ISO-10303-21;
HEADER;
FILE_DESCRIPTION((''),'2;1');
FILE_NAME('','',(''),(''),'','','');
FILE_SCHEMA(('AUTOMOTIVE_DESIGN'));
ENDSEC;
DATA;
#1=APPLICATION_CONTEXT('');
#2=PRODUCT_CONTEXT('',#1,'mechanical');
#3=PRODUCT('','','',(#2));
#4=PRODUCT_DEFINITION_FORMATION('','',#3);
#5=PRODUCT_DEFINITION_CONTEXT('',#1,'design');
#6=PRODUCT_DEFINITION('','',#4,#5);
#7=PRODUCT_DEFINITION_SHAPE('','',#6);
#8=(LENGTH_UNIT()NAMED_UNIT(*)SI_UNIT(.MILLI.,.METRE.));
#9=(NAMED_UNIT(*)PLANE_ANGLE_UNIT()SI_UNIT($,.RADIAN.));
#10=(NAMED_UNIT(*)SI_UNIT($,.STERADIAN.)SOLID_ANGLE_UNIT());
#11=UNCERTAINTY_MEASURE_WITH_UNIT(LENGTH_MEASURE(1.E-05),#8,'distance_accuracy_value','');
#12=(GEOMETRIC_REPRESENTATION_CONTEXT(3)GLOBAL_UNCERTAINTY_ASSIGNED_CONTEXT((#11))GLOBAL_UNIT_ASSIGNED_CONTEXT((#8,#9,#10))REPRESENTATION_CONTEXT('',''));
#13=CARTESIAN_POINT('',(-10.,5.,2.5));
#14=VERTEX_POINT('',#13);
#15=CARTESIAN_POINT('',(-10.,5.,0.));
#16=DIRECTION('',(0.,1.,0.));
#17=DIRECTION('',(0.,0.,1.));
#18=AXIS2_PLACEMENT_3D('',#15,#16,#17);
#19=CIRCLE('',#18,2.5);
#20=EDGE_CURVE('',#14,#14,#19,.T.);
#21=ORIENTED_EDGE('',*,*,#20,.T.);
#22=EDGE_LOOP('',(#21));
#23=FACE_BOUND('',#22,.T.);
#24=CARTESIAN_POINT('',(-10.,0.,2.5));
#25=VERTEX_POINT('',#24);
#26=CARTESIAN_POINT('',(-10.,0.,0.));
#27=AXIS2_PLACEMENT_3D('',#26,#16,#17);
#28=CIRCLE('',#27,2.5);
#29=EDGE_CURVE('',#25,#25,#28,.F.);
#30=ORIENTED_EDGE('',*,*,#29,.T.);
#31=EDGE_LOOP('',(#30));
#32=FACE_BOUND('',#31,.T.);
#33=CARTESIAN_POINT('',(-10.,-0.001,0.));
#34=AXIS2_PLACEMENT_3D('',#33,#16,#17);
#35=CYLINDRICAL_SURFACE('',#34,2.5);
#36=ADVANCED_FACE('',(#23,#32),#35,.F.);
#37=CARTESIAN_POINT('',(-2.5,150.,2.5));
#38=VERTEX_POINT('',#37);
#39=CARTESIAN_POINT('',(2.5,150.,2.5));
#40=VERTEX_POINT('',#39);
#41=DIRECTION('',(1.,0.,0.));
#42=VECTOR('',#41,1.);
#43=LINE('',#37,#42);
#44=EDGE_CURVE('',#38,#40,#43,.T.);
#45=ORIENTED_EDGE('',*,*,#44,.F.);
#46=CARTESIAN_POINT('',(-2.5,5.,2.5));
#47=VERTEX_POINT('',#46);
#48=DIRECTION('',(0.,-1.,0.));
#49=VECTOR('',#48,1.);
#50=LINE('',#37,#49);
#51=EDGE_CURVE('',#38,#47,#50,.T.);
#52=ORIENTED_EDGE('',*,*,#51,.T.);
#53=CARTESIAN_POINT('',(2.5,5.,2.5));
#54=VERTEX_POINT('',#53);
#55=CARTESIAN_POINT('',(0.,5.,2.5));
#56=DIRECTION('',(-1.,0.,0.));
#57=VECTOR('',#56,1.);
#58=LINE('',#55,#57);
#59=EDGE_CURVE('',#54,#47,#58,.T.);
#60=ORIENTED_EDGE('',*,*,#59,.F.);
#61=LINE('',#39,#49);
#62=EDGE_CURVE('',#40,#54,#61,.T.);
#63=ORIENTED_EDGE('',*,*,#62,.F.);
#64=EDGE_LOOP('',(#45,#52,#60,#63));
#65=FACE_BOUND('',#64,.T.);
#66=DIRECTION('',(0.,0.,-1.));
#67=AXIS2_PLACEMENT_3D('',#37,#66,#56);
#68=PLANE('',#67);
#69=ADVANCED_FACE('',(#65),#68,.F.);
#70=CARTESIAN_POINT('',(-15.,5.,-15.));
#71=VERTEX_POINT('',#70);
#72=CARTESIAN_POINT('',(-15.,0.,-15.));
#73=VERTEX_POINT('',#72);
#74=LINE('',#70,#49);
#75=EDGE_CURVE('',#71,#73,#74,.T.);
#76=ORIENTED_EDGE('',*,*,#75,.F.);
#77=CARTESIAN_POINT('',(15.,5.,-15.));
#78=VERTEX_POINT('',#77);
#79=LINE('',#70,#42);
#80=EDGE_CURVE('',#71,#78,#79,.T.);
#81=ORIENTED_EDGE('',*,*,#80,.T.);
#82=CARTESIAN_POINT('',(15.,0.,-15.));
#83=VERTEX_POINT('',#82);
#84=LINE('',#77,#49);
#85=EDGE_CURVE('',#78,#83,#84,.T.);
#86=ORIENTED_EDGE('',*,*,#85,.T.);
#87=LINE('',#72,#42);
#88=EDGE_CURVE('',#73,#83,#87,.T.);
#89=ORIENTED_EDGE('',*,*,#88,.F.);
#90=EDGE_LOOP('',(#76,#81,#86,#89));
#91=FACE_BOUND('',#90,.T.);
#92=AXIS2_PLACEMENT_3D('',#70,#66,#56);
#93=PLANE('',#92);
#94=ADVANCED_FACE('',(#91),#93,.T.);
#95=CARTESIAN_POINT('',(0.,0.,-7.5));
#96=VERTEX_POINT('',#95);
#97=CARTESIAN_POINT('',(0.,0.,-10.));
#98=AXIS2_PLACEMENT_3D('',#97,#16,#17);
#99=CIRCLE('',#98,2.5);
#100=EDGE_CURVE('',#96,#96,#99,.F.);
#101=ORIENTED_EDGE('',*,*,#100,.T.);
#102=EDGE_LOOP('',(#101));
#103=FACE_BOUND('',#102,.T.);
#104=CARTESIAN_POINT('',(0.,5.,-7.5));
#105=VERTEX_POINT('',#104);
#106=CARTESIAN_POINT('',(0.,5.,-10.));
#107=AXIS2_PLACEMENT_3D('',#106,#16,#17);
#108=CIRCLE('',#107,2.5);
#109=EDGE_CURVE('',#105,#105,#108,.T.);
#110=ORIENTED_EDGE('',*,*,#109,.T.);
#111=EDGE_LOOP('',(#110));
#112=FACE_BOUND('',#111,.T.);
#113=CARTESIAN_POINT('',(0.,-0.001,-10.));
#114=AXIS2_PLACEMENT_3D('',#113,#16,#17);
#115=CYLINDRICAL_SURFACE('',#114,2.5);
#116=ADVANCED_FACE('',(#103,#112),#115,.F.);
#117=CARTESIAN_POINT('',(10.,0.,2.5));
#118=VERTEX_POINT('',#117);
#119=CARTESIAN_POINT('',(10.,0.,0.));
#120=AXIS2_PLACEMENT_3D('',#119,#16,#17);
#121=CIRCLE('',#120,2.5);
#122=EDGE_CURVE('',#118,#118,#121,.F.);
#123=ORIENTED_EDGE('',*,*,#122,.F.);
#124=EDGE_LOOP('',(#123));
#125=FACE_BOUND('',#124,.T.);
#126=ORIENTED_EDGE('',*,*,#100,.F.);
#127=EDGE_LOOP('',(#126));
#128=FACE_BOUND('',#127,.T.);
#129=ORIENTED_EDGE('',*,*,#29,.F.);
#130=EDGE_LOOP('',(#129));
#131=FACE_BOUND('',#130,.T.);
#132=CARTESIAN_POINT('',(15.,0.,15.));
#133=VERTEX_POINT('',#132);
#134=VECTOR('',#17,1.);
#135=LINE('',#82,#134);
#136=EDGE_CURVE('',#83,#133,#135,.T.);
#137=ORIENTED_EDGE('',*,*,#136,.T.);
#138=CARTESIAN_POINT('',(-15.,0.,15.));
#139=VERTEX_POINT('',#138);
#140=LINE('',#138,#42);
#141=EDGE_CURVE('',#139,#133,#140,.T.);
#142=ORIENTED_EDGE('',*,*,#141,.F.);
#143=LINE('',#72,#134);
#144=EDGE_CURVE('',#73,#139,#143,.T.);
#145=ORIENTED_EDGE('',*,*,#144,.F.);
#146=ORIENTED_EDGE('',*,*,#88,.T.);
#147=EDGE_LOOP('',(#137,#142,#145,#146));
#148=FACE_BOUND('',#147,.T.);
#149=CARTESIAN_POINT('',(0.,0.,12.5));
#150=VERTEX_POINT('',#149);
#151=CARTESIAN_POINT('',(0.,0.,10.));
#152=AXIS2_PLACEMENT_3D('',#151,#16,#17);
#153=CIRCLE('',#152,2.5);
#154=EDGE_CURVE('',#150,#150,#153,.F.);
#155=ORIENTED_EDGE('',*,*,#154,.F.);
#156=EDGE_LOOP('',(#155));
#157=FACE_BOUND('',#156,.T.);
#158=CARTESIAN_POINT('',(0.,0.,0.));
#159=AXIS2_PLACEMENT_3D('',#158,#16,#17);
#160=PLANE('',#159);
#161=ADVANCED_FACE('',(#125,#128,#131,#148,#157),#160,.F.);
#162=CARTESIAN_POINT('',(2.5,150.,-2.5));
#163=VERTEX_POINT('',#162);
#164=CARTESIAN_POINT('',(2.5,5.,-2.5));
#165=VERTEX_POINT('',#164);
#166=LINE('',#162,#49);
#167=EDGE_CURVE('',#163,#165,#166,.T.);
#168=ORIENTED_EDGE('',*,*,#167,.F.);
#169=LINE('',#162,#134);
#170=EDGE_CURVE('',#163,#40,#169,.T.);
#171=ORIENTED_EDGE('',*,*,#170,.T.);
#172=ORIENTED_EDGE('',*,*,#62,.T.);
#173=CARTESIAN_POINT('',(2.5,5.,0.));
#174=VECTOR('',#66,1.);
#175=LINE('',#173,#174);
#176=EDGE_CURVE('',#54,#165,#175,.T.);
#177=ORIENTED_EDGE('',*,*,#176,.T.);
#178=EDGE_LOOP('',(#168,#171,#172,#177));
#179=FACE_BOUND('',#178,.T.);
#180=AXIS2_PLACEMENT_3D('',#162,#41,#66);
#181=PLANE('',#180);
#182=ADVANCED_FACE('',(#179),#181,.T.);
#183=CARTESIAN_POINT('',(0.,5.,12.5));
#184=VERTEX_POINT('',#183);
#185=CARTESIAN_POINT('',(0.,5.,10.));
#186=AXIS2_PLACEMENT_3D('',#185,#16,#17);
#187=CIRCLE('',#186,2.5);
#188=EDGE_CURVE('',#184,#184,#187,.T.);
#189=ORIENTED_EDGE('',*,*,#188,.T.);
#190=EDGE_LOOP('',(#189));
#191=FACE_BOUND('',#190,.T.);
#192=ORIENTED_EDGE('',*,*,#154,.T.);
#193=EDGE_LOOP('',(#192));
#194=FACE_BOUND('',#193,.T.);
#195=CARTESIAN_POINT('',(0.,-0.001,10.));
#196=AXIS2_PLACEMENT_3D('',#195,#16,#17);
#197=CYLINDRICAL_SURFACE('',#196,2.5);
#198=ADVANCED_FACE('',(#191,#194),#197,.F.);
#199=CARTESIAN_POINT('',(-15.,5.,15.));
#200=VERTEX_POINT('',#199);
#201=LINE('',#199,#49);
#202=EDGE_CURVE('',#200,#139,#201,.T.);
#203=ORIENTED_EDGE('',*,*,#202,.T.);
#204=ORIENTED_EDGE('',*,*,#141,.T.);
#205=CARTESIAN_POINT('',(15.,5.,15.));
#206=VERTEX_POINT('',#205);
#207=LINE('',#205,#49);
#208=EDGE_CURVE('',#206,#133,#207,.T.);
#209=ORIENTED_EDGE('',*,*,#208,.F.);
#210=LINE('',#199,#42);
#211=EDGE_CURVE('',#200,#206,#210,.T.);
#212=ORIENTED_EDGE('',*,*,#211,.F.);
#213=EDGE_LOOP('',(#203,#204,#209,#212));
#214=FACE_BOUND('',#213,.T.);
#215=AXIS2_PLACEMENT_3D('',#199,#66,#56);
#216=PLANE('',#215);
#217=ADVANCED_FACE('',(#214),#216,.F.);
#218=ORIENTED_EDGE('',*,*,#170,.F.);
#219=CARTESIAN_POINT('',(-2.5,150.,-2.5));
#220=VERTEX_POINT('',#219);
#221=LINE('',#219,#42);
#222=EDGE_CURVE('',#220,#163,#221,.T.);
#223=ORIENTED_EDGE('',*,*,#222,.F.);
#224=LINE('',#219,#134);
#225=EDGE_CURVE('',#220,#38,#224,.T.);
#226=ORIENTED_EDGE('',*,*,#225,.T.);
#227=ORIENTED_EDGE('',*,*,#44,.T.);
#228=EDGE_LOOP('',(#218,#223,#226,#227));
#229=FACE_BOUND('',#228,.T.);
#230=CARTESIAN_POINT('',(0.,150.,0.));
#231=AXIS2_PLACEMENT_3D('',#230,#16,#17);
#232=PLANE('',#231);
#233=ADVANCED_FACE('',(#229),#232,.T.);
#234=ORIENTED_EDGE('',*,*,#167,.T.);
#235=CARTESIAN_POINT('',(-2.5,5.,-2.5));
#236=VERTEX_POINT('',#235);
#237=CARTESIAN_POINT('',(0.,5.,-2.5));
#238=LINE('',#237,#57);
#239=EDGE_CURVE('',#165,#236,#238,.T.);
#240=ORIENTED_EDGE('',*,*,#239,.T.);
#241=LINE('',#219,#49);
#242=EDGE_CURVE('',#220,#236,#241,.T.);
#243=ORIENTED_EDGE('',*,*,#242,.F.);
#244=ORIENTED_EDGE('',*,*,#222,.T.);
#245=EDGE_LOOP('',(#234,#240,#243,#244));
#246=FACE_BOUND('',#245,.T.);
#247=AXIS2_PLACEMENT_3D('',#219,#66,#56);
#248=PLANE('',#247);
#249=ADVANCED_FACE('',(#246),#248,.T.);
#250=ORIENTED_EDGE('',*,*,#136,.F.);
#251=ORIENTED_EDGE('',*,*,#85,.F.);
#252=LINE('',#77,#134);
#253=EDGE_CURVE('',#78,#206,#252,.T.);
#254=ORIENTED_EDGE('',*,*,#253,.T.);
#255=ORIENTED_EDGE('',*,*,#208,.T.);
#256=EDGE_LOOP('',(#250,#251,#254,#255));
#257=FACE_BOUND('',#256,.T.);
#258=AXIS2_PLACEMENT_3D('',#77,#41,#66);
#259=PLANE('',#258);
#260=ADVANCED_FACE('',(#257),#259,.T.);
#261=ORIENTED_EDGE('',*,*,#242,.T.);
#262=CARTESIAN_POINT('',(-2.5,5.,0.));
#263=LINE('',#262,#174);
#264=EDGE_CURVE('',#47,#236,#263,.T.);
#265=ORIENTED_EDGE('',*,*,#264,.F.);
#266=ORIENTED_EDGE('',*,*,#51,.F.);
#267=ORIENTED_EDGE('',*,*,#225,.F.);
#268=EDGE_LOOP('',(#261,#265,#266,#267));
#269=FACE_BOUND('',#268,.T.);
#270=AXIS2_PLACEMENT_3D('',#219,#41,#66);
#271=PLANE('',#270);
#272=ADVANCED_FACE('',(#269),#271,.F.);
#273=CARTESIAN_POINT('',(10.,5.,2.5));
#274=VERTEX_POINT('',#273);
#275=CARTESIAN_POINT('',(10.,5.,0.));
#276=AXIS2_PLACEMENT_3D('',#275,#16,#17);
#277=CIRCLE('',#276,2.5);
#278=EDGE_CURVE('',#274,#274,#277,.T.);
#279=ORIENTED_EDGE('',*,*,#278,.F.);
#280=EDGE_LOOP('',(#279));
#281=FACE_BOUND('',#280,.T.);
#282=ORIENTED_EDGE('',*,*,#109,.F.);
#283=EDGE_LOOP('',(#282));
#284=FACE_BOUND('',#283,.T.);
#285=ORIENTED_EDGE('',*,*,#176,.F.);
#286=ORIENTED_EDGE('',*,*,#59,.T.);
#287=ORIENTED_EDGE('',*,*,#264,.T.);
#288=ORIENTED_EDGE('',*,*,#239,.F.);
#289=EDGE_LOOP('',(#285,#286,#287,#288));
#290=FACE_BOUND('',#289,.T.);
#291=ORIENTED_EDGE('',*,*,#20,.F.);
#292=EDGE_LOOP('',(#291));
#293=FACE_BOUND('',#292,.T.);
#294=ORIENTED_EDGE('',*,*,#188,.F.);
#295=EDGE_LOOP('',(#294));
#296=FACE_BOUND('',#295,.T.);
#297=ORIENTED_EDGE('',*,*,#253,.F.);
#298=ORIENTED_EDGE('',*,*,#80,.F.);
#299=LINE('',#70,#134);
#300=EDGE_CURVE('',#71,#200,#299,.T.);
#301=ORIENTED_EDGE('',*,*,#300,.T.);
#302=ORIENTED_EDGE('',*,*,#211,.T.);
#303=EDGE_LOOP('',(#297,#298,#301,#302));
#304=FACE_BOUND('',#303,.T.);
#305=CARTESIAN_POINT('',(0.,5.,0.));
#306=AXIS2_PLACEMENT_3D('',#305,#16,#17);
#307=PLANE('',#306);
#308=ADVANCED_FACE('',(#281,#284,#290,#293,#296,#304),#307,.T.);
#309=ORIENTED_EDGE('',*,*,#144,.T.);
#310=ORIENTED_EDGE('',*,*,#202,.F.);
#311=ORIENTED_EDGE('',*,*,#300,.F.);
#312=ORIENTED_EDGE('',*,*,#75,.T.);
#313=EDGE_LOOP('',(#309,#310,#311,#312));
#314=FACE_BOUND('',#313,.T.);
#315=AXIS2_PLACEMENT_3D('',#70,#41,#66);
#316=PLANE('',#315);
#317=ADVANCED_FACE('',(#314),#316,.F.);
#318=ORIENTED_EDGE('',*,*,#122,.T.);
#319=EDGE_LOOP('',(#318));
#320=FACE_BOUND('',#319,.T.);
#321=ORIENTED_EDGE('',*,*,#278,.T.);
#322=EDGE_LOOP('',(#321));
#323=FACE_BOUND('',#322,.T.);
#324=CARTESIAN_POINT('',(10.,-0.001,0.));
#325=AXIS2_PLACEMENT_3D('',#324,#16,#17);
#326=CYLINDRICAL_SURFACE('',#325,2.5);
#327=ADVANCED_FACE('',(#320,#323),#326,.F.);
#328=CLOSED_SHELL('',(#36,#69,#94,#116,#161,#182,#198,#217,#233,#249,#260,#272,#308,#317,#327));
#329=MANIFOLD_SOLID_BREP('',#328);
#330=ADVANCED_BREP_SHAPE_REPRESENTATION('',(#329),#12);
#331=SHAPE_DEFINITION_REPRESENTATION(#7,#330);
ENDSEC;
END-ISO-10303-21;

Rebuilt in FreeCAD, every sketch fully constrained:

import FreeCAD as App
import Part
import Sketcher

V = App.Vector
Q = App.Units.Quantity

doc = App.newDocument("Part")
body = doc.addObject("PartDesign::Body", "Body")

# Sketch on XZ plane
sketch1 = body.newObject("Sketcher::SketchObject", "Sketch")
sketch1.AttachmentSupport = (doc.getObject("XZ_Plane"), [""])
sketch1.MapMode = "FlatFace"
sketch1.addGeometry(Part.LineSegment(V(-15, -15, 0), V(-15, 15, 0)), False)
sketch1.addGeometry(Part.LineSegment(V(-15, 15, 0), V(15, 15, 0)), False)
sketch1.addGeometry(Part.LineSegment(V(15, 15, 0), V(15, -15, 0)), False)
sketch1.addGeometry(Part.LineSegment(V(15, -15, 0), V(-15, -15, 0)), False)
sketch1.addConstraint(Sketcher.Constraint("Coincident", 0, 2, 1, 1))
sketch1.addConstraint(Sketcher.Constraint("Coincident", 1, 2, 2, 1))
sketch1.addConstraint(Sketcher.Constraint("Coincident", 2, 2, 3, 1))
sketch1.addConstraint(Sketcher.Constraint("Coincident", 3, 2, 0, 1))
sketch1.addConstraint(Sketcher.Constraint("Vertical", 0))
sketch1.addConstraint(Sketcher.Constraint("Horizontal", 1))
sketch1.addConstraint(Sketcher.Constraint("Vertical", 2))
sketch1.addConstraint(Sketcher.Constraint("Horizontal", 3))
sketch1.addConstraint(Sketcher.Constraint("Symmetric", 0, 2, 2, 2, -1, 1))
sketch1.addConstraint(Sketcher.Constraint("Equal", 3, 0))
sketch1.addConstraint(Sketcher.Constraint("DistanceX", 1, 1, 1, 2, Q("30 mm")))
pad1 = body.newObject("PartDesign::Pad", "Pad")
pad1.Profile = sketch1
pad1.Length = 5
pad1.Reversed = True

# Sketch on XZ plane
sketch2 = body.newObject("Sketcher::SketchObject", "Sketch001")
sketch2.AttachmentSupport = (doc.getObject("XZ_Plane"), [""])
sketch2.MapMode = "FlatFace"
sketch2.addGeometry(Part.LineSegment(V(-2, -2, 0), V(-2, 2, 0)), False)
sketch2.addGeometry(Part.LineSegment(V(-2, 2, 0), V(2, 2, 0)), False)
sketch2.addGeometry(Part.LineSegment(V(2, 2, 0), V(2, -2, 0)), False)
sketch2.addGeometry(Part.LineSegment(V(2, -2, 0), V(-2, -2, 0)), False)
sketch2.addConstraint(Sketcher.Constraint("Coincident", 0, 2, 1, 1))
sketch2.addConstraint(Sketcher.Constraint("Coincident", 1, 2, 2, 1))
sketch2.addConstraint(Sketcher.Constraint("Coincident", 2, 2, 3, 1))
sketch2.addConstraint(Sketcher.Constraint("Coincident", 3, 2, 0, 1))
sketch2.addConstraint(Sketcher.Constraint("Vertical", 0))
sketch2.addConstraint(Sketcher.Constraint("Horizontal", 1))
sketch2.addConstraint(Sketcher.Constraint("Vertical", 2))
sketch2.addConstraint(Sketcher.Constraint("Horizontal", 3))
sketch2.addConstraint(Sketcher.Constraint("Symmetric", 0, 2, 2, 2, -1, 1))
sketch2.addConstraint(Sketcher.Constraint("Equal", 3, 0))
sketch2.addConstraint(Sketcher.Constraint("DistanceX", 1, 1, 1, 2, Q("5 mm")))
pad2 = body.newObject("PartDesign::Pad", "Pad001")
pad2.Profile = sketch2
pad2.Length = 150
pad2.Reversed = True

# Sketch on XZ plane
sketch3 = body.newObject("Sketcher::SketchObject", "Sketch002")
sketch3.AttachmentSupport = (doc.getObject("XZ_Plane"), [""])
sketch3.MapMode = "FlatFace"
sketch3.AttachmentOffset = App.Placement(V(0, 0, -5), App.Rotation())
sketch3.addGeometry(Part.Circle(V(0, -10, 0), V(0, 0, 1), 2.5), False)
sketch3.addConstraint(Sketcher.Constraint("PointOnObject", 0, 3, -2))
sketch3.addConstraint(Sketcher.Constraint("Diameter", 0, Q("5 mm")))
sketch3.addConstraint(Sketcher.Constraint("DistanceY", 0, 3, -1, 1, Q("10 mm")))
pocket1 = body.newObject("PartDesign::Pocket", "Pocket")
pocket1.Profile = sketch3
pocket1.Type = "UpToFirst"
pocket1.Reversed = True

# Sketch on XZ plane
sketch4 = body.newObject("Sketcher::SketchObject", "Sketch003")
sketch4.AttachmentSupport = (doc.getObject("XZ_Plane"), [""])
sketch4.MapMode = "FlatFace"
sketch4.AttachmentOffset = App.Placement(V(0, 0, -5), App.Rotation())
sketch4.addGeometry(Part.Circle(V(10, 0, 0), V(0, 0, 1), 2.5), False)
sketch4.addConstraint(Sketcher.Constraint("PointOnObject", 0, 3, -1))
sketch4.addConstraint(Sketcher.Constraint("Diameter", 0, Q("5 mm")))
sketch4.addConstraint(Sketcher.Constraint("DistanceX", -1, 1, 0, 3, Q("10 mm")))
pocket2 = body.newObject("PartDesign::Pocket", "Pocket001")
pocket2.Profile = sketch4
pocket2.Type = "UpToFirst"
pocket2.Reversed = True

# Sketch on XZ plane
sketch5 = body.newObject("Sketcher::SketchObject", "Sketch004")
sketch5.AttachmentSupport = (doc.getObject("XZ_Plane"), [""])
sketch5.MapMode = "FlatFace"
sketch5.AttachmentOffset = App.Placement(V(0, 0, -5), App.Rotation())
sketch5.addGeometry(Part.Circle(V(0, 10, 0), V(0, 0, 1), 2.5), False)
sketch5.addConstraint(Sketcher.Constraint("PointOnObject", 0, 3, -2))
sketch5.addConstraint(Sketcher.Constraint("Diameter", 0, Q("5 mm")))
sketch5.addConstraint(Sketcher.Constraint("DistanceY", -1, 1, 0, 3, Q("10 mm")))
pocket3 = body.newObject("PartDesign::Pocket", "Pocket002")
pocket3.Profile = sketch5
pocket3.Type = "UpToFirst"
pocket3.Reversed = True

# Sketch on XZ plane
sketch6 = body.newObject("Sketcher::SketchObject", "Sketch005")
sketch6.AttachmentSupport = (doc.getObject("XZ_Plane"), [""])
sketch6.MapMode = "FlatFace"
sketch6.AttachmentOffset = App.Placement(V(0, 0, -5), App.Rotation())
sketch6.addGeometry(Part.Circle(V(-10, 0, 0), V(0, 0, 1), 2.5), False)
sketch6.addConstraint(Sketcher.Constraint("PointOnObject", 0, 3, -1))
sketch6.addConstraint(Sketcher.Constraint("Diameter", 0, Q("5 mm")))
sketch6.addConstraint(Sketcher.Constraint("DistanceX", 0, 3, -1, 1, Q("10 mm")))
pocket4 = body.newObject("PartDesign::Pocket", "Pocket003")
pocket4.Profile = sketch6
pocket4.Type = "UpToFirst"
pocket4.Reversed = True

doc.recompute()
